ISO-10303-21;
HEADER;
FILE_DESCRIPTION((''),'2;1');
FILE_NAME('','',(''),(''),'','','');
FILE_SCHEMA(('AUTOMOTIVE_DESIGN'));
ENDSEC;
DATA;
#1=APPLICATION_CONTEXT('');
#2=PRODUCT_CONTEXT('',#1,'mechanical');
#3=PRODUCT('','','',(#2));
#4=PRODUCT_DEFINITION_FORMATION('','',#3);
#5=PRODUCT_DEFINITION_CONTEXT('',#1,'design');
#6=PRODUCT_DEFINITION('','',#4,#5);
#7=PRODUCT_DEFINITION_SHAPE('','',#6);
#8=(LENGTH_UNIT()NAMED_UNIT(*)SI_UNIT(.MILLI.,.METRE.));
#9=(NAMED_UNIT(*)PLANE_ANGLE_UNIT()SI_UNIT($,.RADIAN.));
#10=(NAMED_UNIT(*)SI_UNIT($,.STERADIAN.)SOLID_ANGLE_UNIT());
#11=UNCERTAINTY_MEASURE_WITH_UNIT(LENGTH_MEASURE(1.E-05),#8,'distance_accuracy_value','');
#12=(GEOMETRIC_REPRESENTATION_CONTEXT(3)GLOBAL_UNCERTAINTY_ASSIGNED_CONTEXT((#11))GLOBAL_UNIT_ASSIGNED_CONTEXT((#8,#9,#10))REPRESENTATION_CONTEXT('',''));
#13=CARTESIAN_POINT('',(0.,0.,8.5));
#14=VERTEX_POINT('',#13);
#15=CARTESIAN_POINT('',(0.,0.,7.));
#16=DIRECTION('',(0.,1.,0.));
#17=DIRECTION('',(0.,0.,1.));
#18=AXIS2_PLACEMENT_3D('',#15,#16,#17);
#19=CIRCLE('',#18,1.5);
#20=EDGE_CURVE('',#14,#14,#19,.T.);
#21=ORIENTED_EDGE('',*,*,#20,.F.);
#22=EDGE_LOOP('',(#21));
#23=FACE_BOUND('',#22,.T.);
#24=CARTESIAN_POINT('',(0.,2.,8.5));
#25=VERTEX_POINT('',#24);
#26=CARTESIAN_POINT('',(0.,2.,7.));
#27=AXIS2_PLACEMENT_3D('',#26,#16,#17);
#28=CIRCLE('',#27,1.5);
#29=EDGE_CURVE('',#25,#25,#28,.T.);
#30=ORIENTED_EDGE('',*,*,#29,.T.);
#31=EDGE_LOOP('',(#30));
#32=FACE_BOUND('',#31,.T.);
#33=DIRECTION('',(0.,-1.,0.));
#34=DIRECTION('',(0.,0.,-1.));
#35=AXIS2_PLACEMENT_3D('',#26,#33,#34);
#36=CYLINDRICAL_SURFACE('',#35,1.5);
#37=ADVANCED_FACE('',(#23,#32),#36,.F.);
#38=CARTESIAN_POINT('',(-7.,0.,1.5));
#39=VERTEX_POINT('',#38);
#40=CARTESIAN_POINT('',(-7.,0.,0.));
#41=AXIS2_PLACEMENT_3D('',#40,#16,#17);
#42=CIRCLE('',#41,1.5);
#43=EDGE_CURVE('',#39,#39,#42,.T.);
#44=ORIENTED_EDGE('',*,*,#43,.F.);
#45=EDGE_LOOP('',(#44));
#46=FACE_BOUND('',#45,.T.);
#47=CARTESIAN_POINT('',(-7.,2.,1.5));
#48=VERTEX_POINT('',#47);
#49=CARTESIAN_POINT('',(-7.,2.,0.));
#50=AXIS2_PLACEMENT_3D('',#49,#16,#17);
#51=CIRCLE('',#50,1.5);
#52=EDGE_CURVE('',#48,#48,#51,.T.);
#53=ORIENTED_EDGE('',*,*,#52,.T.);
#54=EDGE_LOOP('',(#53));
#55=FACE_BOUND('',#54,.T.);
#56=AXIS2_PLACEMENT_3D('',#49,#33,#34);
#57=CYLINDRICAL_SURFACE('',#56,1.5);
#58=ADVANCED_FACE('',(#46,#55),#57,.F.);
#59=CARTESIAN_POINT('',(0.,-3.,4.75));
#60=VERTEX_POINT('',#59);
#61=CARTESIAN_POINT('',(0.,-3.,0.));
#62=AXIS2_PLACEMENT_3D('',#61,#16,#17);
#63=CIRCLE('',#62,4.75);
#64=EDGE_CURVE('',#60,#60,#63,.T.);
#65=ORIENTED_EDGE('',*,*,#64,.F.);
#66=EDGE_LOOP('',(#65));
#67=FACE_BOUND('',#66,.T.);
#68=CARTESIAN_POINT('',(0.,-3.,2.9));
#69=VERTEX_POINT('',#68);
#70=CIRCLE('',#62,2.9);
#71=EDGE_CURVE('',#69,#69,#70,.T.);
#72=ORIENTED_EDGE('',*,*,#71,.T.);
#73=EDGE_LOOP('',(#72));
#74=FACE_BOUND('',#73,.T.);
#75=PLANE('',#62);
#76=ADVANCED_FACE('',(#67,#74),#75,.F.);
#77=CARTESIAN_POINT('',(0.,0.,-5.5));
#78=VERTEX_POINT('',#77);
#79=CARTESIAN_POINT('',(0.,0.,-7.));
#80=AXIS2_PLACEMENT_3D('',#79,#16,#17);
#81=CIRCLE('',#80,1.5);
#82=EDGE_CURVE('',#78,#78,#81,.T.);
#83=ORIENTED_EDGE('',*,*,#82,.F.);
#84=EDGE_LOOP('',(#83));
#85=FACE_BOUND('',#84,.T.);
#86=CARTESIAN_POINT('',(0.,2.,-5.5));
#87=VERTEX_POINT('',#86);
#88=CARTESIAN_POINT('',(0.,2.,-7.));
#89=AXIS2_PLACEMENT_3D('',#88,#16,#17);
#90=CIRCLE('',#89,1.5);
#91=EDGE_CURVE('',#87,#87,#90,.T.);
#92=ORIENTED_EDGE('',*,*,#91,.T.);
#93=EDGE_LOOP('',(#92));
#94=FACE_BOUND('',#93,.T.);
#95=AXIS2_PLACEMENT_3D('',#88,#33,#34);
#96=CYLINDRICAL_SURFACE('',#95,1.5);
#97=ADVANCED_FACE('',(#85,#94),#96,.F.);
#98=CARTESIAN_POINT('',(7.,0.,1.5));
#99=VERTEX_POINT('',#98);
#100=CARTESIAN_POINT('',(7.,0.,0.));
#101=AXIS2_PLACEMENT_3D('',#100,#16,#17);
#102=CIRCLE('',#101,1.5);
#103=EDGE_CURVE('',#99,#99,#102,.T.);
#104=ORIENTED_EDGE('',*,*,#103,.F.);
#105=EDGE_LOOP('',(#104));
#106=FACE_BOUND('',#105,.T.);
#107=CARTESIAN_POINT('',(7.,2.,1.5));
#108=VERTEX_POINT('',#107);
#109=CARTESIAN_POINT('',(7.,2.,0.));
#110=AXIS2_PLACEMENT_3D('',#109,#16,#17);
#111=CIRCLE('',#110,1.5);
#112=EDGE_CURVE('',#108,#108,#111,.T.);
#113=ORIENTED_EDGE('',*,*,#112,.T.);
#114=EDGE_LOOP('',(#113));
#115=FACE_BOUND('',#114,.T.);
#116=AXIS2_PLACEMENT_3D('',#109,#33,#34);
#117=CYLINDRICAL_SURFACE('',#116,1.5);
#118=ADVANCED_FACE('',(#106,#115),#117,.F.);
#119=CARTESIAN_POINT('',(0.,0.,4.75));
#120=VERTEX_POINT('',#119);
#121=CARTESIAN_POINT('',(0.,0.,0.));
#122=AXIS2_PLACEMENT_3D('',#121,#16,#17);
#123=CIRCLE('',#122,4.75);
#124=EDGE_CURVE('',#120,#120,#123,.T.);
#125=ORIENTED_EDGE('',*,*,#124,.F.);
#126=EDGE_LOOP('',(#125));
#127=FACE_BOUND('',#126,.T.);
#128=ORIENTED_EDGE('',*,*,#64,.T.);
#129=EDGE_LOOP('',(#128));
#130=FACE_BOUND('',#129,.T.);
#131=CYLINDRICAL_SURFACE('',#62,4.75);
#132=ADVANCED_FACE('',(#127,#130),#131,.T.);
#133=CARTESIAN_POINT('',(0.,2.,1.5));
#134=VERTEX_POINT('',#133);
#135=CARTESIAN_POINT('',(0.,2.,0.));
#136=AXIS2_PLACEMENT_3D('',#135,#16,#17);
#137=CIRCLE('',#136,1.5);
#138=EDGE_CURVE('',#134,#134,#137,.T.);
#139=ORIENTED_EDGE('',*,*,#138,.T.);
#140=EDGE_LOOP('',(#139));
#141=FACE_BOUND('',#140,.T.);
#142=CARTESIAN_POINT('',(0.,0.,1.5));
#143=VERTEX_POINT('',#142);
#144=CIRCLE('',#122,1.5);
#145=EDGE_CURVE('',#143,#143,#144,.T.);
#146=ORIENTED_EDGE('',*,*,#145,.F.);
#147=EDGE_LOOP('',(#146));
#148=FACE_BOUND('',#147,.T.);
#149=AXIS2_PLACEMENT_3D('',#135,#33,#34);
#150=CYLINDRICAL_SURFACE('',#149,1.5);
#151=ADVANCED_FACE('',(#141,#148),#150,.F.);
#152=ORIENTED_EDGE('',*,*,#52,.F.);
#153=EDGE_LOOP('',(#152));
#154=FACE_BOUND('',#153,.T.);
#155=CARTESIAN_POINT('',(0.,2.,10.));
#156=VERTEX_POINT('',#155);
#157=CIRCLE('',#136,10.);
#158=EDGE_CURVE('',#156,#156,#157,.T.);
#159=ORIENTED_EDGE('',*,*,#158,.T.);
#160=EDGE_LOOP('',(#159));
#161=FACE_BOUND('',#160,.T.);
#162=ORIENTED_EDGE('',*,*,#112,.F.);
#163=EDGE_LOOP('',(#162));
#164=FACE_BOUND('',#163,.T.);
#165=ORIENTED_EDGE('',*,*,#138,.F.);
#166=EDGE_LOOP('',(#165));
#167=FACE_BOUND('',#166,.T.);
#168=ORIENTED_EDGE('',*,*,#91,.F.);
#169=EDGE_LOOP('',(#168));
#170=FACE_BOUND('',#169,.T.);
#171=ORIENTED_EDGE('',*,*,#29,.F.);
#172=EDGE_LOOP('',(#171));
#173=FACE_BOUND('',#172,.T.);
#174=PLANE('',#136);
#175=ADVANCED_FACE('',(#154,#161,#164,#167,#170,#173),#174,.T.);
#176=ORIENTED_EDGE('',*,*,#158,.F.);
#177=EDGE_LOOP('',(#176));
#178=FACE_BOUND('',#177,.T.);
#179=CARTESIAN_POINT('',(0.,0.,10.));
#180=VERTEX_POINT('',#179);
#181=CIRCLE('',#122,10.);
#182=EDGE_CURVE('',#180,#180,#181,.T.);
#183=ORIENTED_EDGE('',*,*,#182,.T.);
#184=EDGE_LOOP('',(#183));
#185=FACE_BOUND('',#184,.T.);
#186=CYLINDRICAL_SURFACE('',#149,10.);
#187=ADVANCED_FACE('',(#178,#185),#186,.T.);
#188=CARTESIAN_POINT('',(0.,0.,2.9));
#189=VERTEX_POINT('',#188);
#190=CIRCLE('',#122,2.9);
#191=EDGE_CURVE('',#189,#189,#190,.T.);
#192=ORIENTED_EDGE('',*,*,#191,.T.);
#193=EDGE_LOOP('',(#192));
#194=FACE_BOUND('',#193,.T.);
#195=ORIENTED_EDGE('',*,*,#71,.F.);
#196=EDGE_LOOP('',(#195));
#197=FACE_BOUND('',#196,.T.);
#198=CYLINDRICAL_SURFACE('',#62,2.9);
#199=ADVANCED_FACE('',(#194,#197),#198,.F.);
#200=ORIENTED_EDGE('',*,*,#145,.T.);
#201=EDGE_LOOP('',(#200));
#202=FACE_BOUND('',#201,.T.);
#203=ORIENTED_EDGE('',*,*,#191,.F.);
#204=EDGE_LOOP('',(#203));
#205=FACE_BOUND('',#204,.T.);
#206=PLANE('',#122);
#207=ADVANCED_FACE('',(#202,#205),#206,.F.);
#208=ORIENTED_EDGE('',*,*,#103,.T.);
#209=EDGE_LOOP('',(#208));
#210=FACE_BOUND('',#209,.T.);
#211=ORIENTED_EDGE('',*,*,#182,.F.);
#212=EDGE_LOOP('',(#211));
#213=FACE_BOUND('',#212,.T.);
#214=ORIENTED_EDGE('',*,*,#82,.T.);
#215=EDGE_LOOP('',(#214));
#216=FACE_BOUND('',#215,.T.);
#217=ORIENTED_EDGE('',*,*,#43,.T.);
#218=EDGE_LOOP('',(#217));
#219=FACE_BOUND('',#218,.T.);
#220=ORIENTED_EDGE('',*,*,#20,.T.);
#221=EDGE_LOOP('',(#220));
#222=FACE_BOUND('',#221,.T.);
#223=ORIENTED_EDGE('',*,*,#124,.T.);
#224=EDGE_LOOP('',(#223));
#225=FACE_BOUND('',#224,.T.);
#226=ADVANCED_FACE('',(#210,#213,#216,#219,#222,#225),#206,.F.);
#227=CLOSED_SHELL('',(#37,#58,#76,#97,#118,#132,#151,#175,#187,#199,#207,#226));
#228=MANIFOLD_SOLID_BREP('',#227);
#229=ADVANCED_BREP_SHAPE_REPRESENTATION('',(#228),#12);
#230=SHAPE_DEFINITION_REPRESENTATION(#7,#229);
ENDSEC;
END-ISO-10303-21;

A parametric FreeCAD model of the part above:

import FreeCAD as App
import Part
import Sketcher

V = App.Vector
Q = App.Units.Quantity

doc = App.newDocument("Part")
body = doc.addObject("PartDesign::Body", "Body")

# Sketch on XZ plane
sketch1 = body.newObject("Sketcher::SketchObject", "Sketch")
sketch1.AttachmentSupport = (doc.getObject("XZ_Plane"), [""])
sketch1.MapMode = "FlatFace"
sketch1.addGeometry([
    Part.Circle(V(0, 0, 0), V(0, 0, 1), 10),  # 0
    Part.Circle(V(0, -7, 0), V(0, 0, 1), 1.5),  # 1
    Part.Circle(V(-7, 0, 0), V(0, 0, 1), 1.5),  # 2
    Part.Circle(V(7, 0, 0), V(0, 0, 1), 1.5),  # 3
    Part.Circle(V(0, 7, 0), V(0, 0, 1), 1.5),  # 4
    Part.Circle(V(0, 0, 0), V(0, 0, 1), 1.5),  # 5
], False)
sketch1.addConstraint([
    Sketcher.Constraint("Coincident", 0, 3, -1, 1),
    Sketcher.Constraint("Coincident", 5, 3, -1, 1),
    Sketcher.Constraint("Equal", 1, 2),
    Sketcher.Constraint("Equal", 2, 3),
    Sketcher.Constraint("Equal", 3, 4),
    Sketcher.Constraint("Equal", 4, 5),
    Sketcher.Constraint("Symmetric", 2, 3, 3, 3, -1, 1),
    Sketcher.Constraint("Symmetric", 1, 3, 4, 3, -1, 1),
    Sketcher.Constraint("PointOnObject", 1, 3, -2),
    Sketcher.Constraint("PointOnObject", 2, 3, -1),
    Sketcher.Constraint("Diameter", 0, Q("20 mm")),
    Sketcher.Constraint("Diameter", 1, Q("3 mm")),
    Sketcher.Constraint("DistanceY", 1, 3, -1, 1, Q("7 mm")),
    Sketcher.Constraint("DistanceX", 2, 3, -1, 1, Q("7 mm")),
])
pad1 = body.newObject("PartDesign::Pad", "Pad")
pad1.Profile = sketch1
pad1.Length = 2
pad1.Reversed = True

# Sketch on XZ plane
sketch2 = body.newObject("Sketcher::SketchObject", "Sketch001")
sketch2.AttachmentSupport = (doc.getObject("XZ_Plane"), [""])
sketch2.MapMode = "FlatFace"
sketch2.addGeometry([
    Part.Circle(V(0, 0, 0), V(0, 0, 1), 4.8),
    Part.Circle(V(0, 0, 0), V(0, 0, 1), 2.9),
], False)
sketch2.addConstraint([
    Sketcher.Constraint("Coincident", 0, 3, -1, 1),
    Sketcher.Constraint("Coincident", 1, 3, -1, 1),
    Sketcher.Constraint("Diameter", 0, Q("9.5 mm")),
    Sketcher.Constraint("Diameter", 1, Q("5.8 mm")),
])
pad2 = body.newObject("PartDesign::Pad", "Pad001")
pad2.Profile = sketch2
pad2.Length = 3

doc.recompute()
